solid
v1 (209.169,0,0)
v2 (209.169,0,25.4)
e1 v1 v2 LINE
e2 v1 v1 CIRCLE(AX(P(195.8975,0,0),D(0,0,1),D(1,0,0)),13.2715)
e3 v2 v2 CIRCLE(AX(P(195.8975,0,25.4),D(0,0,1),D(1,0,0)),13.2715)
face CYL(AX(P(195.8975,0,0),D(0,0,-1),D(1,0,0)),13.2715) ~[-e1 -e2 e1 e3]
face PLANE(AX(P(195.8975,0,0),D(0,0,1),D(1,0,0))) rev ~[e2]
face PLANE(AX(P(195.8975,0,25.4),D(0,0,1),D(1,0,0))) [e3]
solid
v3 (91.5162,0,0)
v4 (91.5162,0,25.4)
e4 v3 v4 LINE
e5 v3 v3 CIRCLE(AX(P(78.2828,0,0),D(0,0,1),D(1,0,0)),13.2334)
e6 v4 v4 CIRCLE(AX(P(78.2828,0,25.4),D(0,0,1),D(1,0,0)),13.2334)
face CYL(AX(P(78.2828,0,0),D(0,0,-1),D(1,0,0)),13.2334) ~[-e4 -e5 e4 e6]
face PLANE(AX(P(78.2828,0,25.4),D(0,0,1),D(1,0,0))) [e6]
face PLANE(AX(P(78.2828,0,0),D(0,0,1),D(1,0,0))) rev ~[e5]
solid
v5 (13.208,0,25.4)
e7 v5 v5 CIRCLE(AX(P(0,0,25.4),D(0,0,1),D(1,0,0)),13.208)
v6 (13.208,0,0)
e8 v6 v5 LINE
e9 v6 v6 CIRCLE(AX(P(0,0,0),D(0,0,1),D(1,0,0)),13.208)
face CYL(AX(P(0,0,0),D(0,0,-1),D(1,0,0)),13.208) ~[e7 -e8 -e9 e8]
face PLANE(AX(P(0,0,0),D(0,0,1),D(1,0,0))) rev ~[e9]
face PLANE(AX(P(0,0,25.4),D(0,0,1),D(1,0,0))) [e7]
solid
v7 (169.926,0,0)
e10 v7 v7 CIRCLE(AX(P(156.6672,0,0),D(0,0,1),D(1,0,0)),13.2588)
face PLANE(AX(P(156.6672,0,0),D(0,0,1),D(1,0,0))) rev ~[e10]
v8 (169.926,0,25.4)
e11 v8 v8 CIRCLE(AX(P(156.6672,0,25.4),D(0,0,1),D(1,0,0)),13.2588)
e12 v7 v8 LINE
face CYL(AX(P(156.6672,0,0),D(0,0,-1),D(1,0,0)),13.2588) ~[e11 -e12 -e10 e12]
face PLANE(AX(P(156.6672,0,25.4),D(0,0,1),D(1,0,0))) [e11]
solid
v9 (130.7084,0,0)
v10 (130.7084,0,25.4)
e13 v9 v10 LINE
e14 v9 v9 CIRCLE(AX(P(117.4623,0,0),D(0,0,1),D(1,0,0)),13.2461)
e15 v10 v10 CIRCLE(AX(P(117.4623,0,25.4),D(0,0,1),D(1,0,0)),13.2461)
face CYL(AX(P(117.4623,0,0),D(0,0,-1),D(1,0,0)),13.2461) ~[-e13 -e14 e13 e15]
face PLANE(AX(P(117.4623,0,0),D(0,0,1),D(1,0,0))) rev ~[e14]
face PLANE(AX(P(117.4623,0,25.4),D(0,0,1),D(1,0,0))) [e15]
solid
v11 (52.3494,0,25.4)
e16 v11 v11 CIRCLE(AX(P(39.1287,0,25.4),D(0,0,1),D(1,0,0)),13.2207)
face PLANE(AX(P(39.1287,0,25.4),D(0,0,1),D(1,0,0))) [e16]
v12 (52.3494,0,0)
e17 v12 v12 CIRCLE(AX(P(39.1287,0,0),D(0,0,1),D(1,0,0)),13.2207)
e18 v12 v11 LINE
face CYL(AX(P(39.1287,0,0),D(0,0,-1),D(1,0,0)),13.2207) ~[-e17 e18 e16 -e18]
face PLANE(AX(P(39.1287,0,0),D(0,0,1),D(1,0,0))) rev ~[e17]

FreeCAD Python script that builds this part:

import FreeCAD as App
import Part
import Sketcher

V = App.Vector
Q = App.Units.Quantity

doc = App.newDocument("Part")
body = doc.addObject("PartDesign::Body", "Body")
body.AllowCompound = True

# Sketch on XY plane
sketch1 = body.newObject("Sketcher::SketchObject", "Sketch")
sketch1.AttachmentSupport = (doc.getObject("XY_Plane"), [""])
sketch1.MapMode = "FlatFace"
sketch1.addGeometry([
    Part.Circle(V(0, 0, 0), V(0, 0, 1), 13.208),  # 0
    Part.Circle(V(39.1287, 0, 0), V(0, 0, 1), 13.2207),  # 1
    Part.Circle(V(78.2828, 0, 0), V(0, 0, 1), 13.2334),  # 2
    Part.Circle(V(117.4623, 0, 0), V(0, 0, 1), 13.2461),  # 3
    Part.Circle(V(156.6672, 0, 0), V(0, 0, 1), 13.2588),  # 4
    Part.Circle(V(195.8975, 0, 0), V(0, 0, 1), 13.2715),  # 5
], False)
sketch1.addConstraint([
    Sketcher.Constraint("Coincident", 0, 3, -1, 1),
    Sketcher.Constraint("PointOnObject", 1, 3, -1),
    Sketcher.Constraint("PointOnObject", 2, 3, -1),
    Sketcher.Constraint("PointOnObject", 3, 3, -1),
    Sketcher.Constraint("PointOnObject", 4, 3, -1),
    Sketcher.Constraint("PointOnObject", 5, 3, -1),
    Sketcher.Constraint("Diameter", 0, Q("1.04 in")),
    Sketcher.Constraint("Diameter", 1, Q("1.041 in")),
    Sketcher.Constraint("Diameter", 2, Q("1.042 in")),
    Sketcher.Constraint("Diameter", 3, Q("1.043 in")),
    Sketcher.Constraint("Diameter", 4, Q("1.044 in")),
    Sketcher.Constraint("Diameter", 5, Q("1.045 in")),
    Sketcher.Constraint("DistanceX", -1, 1, 2, 3, Q("3.082 in")),
    Sketcher.Constraint("DistanceX", -1, 1, 4, 3, Q("6.168 in")),
    Sketcher.Constraint("DistanceX", 1, 3, 3, 3, Q("3.084 in")),
    Sketcher.Constraint("DistanceX", 3, 3, 5, 3, Q("3.088 in")),
    Sketcher.Constraint("DistanceX", -1, 1, 1, 3, Q("1.5405 in")),
])
pad1 = body.newObject("PartDesign::Pad", "Pad")
pad1.Profile = sketch1
pad1.Length = Q("1 in")

doc.recompute()
